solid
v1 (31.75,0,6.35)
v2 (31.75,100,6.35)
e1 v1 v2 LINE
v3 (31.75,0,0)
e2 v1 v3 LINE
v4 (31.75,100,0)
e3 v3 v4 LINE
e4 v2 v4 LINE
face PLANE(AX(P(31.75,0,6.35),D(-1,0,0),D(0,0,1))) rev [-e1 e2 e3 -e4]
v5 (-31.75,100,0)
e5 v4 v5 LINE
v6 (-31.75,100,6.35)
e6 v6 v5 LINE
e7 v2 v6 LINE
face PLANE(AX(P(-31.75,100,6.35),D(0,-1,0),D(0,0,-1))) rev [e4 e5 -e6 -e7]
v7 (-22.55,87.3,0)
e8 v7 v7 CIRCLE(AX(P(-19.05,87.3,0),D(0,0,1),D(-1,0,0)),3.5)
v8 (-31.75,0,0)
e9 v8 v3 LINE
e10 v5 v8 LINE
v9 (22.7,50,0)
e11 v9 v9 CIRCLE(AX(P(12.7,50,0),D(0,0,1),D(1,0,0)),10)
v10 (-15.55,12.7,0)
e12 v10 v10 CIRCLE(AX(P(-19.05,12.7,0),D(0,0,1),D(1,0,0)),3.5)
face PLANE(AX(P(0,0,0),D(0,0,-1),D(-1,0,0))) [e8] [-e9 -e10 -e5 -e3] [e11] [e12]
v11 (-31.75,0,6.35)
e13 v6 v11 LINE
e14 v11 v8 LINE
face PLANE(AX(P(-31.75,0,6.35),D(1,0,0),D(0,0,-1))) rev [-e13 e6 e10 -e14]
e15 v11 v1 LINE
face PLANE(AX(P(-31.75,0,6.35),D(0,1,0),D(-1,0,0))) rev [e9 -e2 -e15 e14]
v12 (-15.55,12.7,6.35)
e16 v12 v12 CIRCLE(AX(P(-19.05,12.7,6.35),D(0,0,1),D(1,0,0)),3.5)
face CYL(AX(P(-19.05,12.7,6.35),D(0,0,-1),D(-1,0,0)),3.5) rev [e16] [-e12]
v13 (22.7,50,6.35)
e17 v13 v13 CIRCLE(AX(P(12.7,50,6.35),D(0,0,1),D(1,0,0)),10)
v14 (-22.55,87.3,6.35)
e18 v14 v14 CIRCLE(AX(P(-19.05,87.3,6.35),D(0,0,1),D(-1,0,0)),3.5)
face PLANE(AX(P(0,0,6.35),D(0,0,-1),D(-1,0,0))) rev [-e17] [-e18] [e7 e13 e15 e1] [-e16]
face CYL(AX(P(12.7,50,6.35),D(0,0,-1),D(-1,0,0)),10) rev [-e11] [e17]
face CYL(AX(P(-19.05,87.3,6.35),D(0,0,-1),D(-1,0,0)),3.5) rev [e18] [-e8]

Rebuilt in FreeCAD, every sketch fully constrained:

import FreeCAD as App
import Part
import Sketcher
from FreeCAD import Vector
Q = App.Units.Quantity

doc = App.newDocument("Part")
body = doc.addObject("PartDesign::Body", "Body")

# Sketch on XY plane
sketch1 = doc.addObject("Sketcher::SketchObject", "Sketch")
body.addObject(sketch1)
sketch1.AttachmentSupport = (doc.XY_Plane, [""])
sketch1.MapMode = "FlatFace"
sketch1.addGeometry(Part.LineSegment(Vector(-31.8, 100, 0), Vector(-31.8, 0, 0)), False)
sketch1.addGeometry(Part.LineSegment(Vector(-31.8, 0, 0), Vector(31.8, 0, 0)), False)
sketch1.addGeometry(Part.LineSegment(Vector(31.8, 0, 0), Vector(31.8, 100, 0)), False)
sketch1.addGeometry(Part.LineSegment(Vector(31.8, 100, 0), Vector(-31.8, 100, 0)), False)
sketch1.addGeometry(Part.Circle(Vector(-19.1, 12.7, 0), Vector(0, 0, 1), 3.5), False)
sketch1.addGeometry(Part.Circle(Vector(-19.1, 87.3, 0), Vector(0, 0, 1), 3.5), False)
sketch1.addGeometry(Part.Circle(Vector(12.7, 50, 0), Vector(0, 0, 1), 10), False)
sketch1.addConstraint(Sketcher.Constraint("Coincident", 0, 2, 1, 1))
sketch1.addConstraint(Sketcher.Constraint("Coincident", 1, 2, 2, 1))
sketch1.addConstraint(Sketcher.Constraint("Coincident", 2, 2, 3, 1))
sketch1.addConstraint(Sketcher.Constraint("Coincident", 3, 2, 0, 1))
sketch1.addConstraint(Sketcher.Constraint("Vertical", 0))
sketch1.addConstraint(Sketcher.Constraint("Horizontal", 1))
sketch1.addConstraint(Sketcher.Constraint("Vertical", 2))
sketch1.addConstraint(Sketcher.Constraint("Horizontal", 3))
sketch1.addConstraint(Sketcher.Constraint("Equal", 4, 5))
sketch1.addConstraint(Sketcher.Constraint("Symmetric", 0, 2, 1, 2, -1, 1))
sketch1.addConstraint(Sketcher.Constraint("Vertical", 4, 3, 5, 3))
sketch1.addConstraint(Sketcher.Constraint("Diameter", 4, Q("7 mm")))
sketch1.addConstraint(Sketcher.Constraint("Diameter", 6, Q("20 mm")))
sketch1.addConstraint(Sketcher.Constraint("DistanceY", 0, 2, 0, 1, Q("100 mm")))
sketch1.addConstraint(Sketcher.Constraint("DistanceX", 1, 1, 1, 2, Q("63.5 mm")))
sketch1.addConstraint(Sketcher.Constraint("DistanceY", -1, 1, 6, 3, Q("50 mm")))
sketch1.addConstraint(Sketcher.Constraint("DistanceY", -1, 1, 4, 3, Q("12.7 mm")))
sketch1.addConstraint(Sketcher.Constraint("DistanceY", -1, 1, 5, 3, Q("87.3 mm")))
sketch1.addConstraint(Sketcher.Constraint("DistanceX", -1, 1, 6, 3, Q("12.7 mm")))
sketch1.addConstraint(Sketcher.Constraint("DistanceX", 0, 2, 4, 3, Q("12.7 mm")))
pad1 = doc.addObject("PartDesign::Pad", "Pad")
body.addObject(pad1)
pad1.Profile = sketch1
pad1.Length = 6.35

doc.recompute()
